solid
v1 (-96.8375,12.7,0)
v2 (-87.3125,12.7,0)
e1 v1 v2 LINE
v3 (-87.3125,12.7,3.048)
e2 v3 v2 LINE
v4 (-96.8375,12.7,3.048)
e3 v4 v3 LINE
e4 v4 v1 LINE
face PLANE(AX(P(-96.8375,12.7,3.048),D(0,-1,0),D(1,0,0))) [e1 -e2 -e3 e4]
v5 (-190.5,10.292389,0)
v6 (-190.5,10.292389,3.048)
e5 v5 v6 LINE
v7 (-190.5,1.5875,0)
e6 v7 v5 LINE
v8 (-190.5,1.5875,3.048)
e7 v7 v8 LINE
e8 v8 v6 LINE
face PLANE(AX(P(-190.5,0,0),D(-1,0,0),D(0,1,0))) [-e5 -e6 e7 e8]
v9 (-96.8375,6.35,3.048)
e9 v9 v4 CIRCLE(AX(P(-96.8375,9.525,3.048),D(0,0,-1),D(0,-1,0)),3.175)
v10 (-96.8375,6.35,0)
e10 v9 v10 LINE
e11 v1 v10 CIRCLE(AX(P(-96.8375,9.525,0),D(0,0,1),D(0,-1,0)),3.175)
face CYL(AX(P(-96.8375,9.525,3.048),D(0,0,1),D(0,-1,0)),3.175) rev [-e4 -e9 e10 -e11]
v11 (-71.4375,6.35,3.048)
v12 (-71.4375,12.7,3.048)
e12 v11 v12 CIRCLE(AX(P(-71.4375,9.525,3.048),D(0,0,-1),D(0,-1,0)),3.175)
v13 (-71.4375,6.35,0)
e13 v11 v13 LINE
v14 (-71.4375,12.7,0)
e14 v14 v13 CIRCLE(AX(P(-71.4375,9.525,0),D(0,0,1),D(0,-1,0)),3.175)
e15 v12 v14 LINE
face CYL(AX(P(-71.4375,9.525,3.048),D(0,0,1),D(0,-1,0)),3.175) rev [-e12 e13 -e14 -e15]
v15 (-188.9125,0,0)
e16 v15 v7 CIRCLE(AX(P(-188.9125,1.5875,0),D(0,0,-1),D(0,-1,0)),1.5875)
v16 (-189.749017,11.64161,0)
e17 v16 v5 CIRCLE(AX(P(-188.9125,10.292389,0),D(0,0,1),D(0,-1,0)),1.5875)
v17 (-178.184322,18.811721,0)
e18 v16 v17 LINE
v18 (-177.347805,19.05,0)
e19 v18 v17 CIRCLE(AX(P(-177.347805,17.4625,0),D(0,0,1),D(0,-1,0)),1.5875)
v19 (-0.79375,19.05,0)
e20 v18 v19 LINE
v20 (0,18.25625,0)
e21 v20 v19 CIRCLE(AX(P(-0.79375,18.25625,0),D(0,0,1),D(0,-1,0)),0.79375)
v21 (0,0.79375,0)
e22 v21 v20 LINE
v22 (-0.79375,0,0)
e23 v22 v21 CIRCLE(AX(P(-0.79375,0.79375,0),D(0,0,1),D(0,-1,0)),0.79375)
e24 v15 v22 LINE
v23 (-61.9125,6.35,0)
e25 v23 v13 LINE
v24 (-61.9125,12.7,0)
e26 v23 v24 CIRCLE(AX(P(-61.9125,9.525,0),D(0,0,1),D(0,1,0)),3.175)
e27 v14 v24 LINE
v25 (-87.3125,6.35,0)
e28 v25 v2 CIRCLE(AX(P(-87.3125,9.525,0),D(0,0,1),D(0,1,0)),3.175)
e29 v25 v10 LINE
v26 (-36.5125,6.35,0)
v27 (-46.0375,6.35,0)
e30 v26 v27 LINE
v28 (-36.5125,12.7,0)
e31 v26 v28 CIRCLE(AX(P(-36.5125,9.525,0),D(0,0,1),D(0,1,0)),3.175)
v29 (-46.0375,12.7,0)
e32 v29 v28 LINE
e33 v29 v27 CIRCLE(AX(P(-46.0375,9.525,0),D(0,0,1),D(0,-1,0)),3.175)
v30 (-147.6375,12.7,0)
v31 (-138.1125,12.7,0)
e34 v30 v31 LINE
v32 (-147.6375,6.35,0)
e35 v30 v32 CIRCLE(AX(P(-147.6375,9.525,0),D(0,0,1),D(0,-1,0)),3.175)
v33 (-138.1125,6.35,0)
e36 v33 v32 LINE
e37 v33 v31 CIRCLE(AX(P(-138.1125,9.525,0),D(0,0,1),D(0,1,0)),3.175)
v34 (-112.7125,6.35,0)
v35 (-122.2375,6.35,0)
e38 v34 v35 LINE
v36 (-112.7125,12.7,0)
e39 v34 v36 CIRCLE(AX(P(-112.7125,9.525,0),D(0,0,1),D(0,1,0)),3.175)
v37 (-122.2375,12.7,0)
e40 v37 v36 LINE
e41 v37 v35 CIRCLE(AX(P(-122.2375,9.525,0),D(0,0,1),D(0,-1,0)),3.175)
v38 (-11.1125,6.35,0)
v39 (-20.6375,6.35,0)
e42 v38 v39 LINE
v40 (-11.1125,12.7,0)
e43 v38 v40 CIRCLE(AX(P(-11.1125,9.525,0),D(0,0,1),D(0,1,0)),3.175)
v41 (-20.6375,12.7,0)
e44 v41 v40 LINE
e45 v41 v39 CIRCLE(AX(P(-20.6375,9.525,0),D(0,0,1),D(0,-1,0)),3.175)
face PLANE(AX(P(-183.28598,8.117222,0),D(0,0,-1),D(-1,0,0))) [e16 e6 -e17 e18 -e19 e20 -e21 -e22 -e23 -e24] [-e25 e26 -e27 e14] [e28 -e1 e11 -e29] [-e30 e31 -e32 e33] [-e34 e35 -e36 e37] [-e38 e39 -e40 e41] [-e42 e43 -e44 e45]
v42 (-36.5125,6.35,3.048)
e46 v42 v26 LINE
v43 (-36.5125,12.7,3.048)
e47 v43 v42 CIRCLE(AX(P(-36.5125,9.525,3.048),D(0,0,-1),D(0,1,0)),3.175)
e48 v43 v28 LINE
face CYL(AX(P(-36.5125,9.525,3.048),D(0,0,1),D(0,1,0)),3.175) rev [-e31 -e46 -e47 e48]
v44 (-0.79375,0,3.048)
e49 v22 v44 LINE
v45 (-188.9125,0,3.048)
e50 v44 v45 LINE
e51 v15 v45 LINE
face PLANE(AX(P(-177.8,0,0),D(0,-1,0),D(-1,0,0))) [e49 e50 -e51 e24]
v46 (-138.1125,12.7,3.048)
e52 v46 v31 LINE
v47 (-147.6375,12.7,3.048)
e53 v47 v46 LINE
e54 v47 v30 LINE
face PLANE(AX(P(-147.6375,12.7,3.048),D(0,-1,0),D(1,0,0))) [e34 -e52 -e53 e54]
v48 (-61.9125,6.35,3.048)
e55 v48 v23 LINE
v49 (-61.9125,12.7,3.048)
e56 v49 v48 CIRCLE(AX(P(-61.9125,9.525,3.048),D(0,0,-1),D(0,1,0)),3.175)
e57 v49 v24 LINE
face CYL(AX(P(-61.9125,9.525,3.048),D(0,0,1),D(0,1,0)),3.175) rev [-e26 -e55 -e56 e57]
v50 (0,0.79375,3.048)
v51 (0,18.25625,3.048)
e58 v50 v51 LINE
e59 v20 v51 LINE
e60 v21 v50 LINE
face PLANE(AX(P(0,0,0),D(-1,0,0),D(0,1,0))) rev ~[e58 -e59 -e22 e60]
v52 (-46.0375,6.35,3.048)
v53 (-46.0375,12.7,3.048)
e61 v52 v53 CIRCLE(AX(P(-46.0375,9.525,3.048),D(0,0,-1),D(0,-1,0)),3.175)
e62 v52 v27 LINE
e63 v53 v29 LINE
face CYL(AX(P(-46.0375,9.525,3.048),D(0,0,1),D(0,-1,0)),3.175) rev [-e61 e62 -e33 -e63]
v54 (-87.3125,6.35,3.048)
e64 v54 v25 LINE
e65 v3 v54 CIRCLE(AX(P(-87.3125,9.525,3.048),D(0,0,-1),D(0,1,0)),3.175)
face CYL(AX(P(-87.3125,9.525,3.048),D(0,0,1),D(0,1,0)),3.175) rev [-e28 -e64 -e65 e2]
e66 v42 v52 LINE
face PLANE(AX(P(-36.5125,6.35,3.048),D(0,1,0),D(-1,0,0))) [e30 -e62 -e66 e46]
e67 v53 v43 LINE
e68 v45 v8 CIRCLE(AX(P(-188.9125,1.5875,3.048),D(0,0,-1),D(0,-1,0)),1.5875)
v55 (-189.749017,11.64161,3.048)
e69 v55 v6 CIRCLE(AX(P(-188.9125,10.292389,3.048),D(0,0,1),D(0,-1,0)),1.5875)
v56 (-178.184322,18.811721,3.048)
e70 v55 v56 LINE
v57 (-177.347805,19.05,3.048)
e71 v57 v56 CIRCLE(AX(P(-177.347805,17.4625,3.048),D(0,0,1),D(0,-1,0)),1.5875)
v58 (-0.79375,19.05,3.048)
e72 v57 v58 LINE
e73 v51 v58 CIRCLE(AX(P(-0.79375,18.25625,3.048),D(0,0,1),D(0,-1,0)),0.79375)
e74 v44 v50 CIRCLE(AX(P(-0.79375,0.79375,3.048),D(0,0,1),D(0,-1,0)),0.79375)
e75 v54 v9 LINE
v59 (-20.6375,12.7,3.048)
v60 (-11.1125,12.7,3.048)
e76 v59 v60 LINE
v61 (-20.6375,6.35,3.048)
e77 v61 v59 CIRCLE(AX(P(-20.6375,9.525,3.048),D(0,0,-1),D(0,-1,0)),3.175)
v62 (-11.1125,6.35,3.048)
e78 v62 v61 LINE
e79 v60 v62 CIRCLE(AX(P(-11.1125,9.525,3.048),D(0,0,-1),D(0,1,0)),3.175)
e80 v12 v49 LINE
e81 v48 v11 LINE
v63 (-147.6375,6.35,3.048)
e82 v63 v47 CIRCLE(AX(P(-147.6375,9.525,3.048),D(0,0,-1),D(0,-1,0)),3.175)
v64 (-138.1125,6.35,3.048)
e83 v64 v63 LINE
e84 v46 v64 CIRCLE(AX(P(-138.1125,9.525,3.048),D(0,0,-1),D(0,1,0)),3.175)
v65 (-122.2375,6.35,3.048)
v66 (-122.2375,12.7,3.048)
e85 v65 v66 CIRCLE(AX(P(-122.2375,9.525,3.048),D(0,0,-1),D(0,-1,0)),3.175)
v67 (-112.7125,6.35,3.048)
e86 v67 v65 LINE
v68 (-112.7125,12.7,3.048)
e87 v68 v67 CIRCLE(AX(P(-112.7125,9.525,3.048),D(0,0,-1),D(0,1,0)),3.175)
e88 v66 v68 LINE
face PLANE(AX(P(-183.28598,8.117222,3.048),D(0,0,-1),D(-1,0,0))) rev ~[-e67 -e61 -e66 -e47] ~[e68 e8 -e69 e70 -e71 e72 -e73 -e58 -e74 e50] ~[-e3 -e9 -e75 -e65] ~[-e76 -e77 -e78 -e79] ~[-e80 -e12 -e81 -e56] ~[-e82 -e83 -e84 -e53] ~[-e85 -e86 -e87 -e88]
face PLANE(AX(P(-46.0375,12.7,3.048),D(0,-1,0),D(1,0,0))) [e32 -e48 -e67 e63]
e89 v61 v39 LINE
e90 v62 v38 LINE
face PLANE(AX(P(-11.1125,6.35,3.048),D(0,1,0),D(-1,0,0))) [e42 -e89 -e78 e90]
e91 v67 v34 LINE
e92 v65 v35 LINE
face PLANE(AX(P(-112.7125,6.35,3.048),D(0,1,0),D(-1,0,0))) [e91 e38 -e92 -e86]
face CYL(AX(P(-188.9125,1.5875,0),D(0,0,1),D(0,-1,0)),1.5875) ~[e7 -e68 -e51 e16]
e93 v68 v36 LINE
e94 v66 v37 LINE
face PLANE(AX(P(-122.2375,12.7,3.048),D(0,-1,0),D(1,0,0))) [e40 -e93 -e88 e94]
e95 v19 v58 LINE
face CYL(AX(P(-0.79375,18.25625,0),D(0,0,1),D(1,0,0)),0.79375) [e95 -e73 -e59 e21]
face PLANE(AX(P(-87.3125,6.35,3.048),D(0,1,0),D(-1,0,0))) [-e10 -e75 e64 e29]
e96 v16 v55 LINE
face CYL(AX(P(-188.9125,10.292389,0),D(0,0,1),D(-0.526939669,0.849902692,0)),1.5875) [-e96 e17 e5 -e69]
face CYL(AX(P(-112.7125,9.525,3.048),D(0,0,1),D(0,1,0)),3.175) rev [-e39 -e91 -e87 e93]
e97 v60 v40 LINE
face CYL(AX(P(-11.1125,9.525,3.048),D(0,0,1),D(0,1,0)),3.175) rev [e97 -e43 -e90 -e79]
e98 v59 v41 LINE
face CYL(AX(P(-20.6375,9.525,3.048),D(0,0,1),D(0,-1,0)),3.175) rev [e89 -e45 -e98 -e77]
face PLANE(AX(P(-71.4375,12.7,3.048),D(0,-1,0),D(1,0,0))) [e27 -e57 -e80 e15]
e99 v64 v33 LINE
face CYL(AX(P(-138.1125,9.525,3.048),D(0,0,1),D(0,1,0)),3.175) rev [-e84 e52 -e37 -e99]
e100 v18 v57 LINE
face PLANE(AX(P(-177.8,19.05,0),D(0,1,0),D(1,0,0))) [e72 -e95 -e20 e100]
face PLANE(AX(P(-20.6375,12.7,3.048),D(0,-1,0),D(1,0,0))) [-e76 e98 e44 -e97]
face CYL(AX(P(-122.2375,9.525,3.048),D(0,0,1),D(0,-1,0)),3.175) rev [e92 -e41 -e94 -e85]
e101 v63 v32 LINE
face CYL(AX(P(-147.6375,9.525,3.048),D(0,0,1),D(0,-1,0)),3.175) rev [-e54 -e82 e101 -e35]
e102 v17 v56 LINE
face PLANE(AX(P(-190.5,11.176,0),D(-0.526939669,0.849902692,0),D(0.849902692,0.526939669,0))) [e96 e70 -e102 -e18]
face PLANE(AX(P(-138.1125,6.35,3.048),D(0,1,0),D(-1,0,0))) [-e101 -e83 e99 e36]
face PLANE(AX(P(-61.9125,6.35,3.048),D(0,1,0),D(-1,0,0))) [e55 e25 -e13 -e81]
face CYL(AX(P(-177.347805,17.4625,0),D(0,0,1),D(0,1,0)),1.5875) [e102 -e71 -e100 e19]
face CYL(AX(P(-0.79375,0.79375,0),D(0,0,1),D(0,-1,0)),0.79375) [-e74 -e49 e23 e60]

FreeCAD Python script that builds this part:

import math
import FreeCAD as App
import Part
import Sketcher
from FreeCAD import Vector
Q = App.Units.Quantity


def edges_at(feature, points):
    """Names of the edges that pass closest to the given points."""
    edges = feature.Shape.Edges
    near = lambda p: min(range(len(edges)), key=lambda i: edges[i].distToShape(Part.Vertex(*p))[0])
    return sorted({f"Edge{near(p) + 1}" for p in points})


def add_polygon(sketch, points):
    """Adds a closed chain of lines whose ends are joined by coincident constraints."""
    first, n = sketch.GeometryCount, len(points)
    for a, b in zip(points, points[1:] + points[:1]):
        sketch.addGeometry(Part.LineSegment(App.Vector(*a, 0), App.Vector(*b, 0)), False)
    for i in range(n):
        sketch.addConstraint(Sketcher.Constraint("Coincident", first + i, 2, first + (i + 1) % n, 1))

doc = App.newDocument("Part")
params = doc.addObject("Spreadsheet::Sheet", "Params")
for row, (alias, value) in enumerate([
    ("sketch1_width", "7 in"),
    ("sketch1_height", "0.75 in"),
    ("pad1_length", "0.12 in"),
    ("sketch2_radius", "0.125 in"),
    ("sketch2_width", "0.375 in"),
    ("sketch3_width", "0.5 in"),
    ("sketch3_height", "0.44 in"),
    ("sketch3_height2", "0.75 in"),
    ("pad2_length", "0.12 in"),
    ("fillet_radius", "0.0625 in"),
    ("fillet2_radius", "0.03125 in"),
], start=1):
    params.set(f"A{row}", alias)
    params.set(f"B{row}", "=" + value)
    params.setAlias(f"B{row}", alias)

body = doc.addObject("PartDesign::Body", "Body")

sketch1 = doc.addObject("Sketcher::SketchObject", "Sketch")
body.addObject(sketch1)
sketch1.AttachmentSupport = (doc.XY_Plane, [""])
sketch1.MapMode = "FlatFace"
add_polygon(sketch1, [(-177.8, 19.05), (-177.8, 0), (0, 0), (0, 19.05)])
sketch1.addConstraint(Sketcher.Constraint("Vertical", 0))
sketch1.addConstraint(Sketcher.Constraint("Horizontal", 1))
sketch1.addConstraint(Sketcher.Constraint("Vertical", 2))
sketch1.addConstraint(Sketcher.Constraint("Horizontal", 3))
sketch1.addConstraint(Sketcher.Constraint("Coincident", 1, 2, -1, 1))
sketch1.addConstraint(Sketcher.Constraint("DistanceX", 1, 1, 1, 2, Q("7 in")))
sketch1.addConstraint(Sketcher.Constraint("DistanceY", 0, 2, 0, 1, Q("0.75 in")))
sketch1.setExpression("Constraints[9]", "Params.sketch1_width")
sketch1.setExpression("Constraints[10]", "Params.sketch1_height")
pad1 = doc.addObject("PartDesign::Pad", "Pad")
body.addObject(pad1)
pad1.Profile = sketch1
pad1.setExpression("Length", "Params.pad1_length")

sketch2 = doc.addObject("Sketcher::SketchObject", "Sketch001")
body.addObject(sketch2)
sketch2.AttachmentSupport = (doc.XY_Plane, [""])
sketch2.MapMode = "FlatFace"
sketch2.AttachmentOffset = App.Placement(Vector(0, 0, 0.12 * 25.4), App.Rotation())
sketch2.addGeometry(Part.LineSegment(Vector(-20.6375, 6.35, 0), Vector(-11.1125, 6.35, 0)), False)
sketch2.addGeometry(Part.ArcOfCircle(Part.Circle(Vector(-11.1125, 9.525, 0), Vector(0, 0, 1), 3.175), math.radians(-90), math.radians(90)), False)
sketch2.addGeometry(Part.LineSegment(Vector(-11.1125, 12.7, 0), Vector(-20.6375, 12.7, 0)), False)
sketch2.addGeometry(Part.ArcOfCircle(Part.Circle(Vector(-20.6375, 9.525, 0), Vector(0, 0, 1), 3.175), math.radians(90), math.radians(270)), False)
sketch2.addGeometry(Part.LineSegment(Vector(-46.0375, 6.35, 0), Vector(-36.5125, 6.35, 0)), False)
sketch2.addGeometry(Part.ArcOfCircle(Part.Circle(Vector(-36.5125, 9.525, 0), Vector(0, 0, 1), 3.175), math.radians(-90), math.radians(90)), False)
sketch2.addGeometry(Part.LineSegment(Vector(-36.5125, 12.7, 0), Vector(-46.0375, 12.7, 0)), False)
sketch2.addGeometry(Part.ArcOfCircle(Part.Circle(Vector(-46.0375, 9.525, 0), Vector(0, 0, 1), 3.175), math.radians(90), math.radians(270)), False)
sketch2.addGeometry(Part.LineSegment(Vector(-71.4375, 6.35, 0), Vector(-61.9125, 6.35, 0)), False)
sketch2.addGeometry(Part.ArcOfCircle(Part.Circle(Vector(-61.9125, 9.525, 0), Vector(0, 0, 1), 3.175), math.radians(-90), math.radians(90)), False)
sketch2.addGeometry(Part.LineSegment(Vector(-61.9125, 12.7, 0), Vector(-71.4375, 12.7, 0)), False)
sketch2.addGeometry(Part.ArcOfCircle(Part.Circle(Vector(-71.4375, 9.525, 0), Vector(0, 0, 1), 3.175), math.radians(90), math.radians(270)), False)
sketch2.addGeometry(Part.LineSegment(Vector(-96.8375, 6.35, 0), Vector(-87.3125, 6.35, 0)), False)
sketch2.addGeometry(Part.ArcOfCircle(Part.Circle(Vector(-87.3125, 9.525, 0), Vector(0, 0, 1), 3.175), math.radians(-90), math.radians(90)), False)
sketch2.addGeometry(Part.LineSegment(Vector(-87.3125, 12.7, 0), Vector(-96.8375, 12.7, 0)), False)
sketch2.addGeometry(Part.ArcOfCircle(Part.Circle(Vector(-96.8375, 9.525, 0), Vector(0, 0, 1), 3.175), math.radians(90), math.radians(270)), False)
sketch2.addGeometry(Part.LineSegment(Vector(-122.2375, 6.35, 0), Vector(-112.7125, 6.35, 0)), False)
sketch2.addGeometry(Part.ArcOfCircle(Part.Circle(Vector(-112.7125, 9.525, 0), Vector(0, 0, 1), 3.175), math.radians(-90), math.radians(90)), False)
sketch2.addGeometry(Part.LineSegment(Vector(-112.7125, 12.7, 0), Vector(-122.2375, 12.7, 0)), False)
sketch2.addGeometry(Part.ArcOfCircle(Part.Circle(Vector(-122.2375, 9.525, 0), Vector(0, 0, 1), 3.175), math.radians(90), math.radians(270)), False)
sketch2.addGeometry(Part.LineSegment(Vector(-147.6375, 6.35, 0), Vector(-138.1125, 6.35, 0)), False)
sketch2.addGeometry(Part.ArcOfCircle(Part.Circle(Vector(-138.1125, 9.525, 0), Vector(0, 0, 1), 3.175), math.radians(-90), math.radians(90)), False)
sketch2.addGeometry(Part.LineSegment(Vector(-138.1125, 12.7, 0), Vector(-147.6375, 12.7, 0)), False)
sketch2.addGeometry(Part.ArcOfCircle(Part.Circle(Vector(-147.6375, 9.525, 0), Vector(0, 0, 1), 3.175), math.radians(90), math.radians(270)), False)
sketch2.addConstraint(Sketcher.Constraint("Tangent", 0, 2, 1, 1))
sketch2.addConstraint(Sketcher.Constraint("Tangent", 1, 2, 2, 1))
sketch2.addConstraint(Sketcher.Constraint("Tangent", 2, 2, 3, 1))
sketch2.addConstraint(Sketcher.Constraint("Tangent", 3, 2, 0, 1))
sketch2.addConstraint(Sketcher.Constraint("Tangent", 4, 2, 5, 1))
sketch2.addConstraint(Sketcher.Constraint("Tangent", 5, 2, 6, 1))
sketch2.addConstraint(Sketcher.Constraint("Tangent", 6, 2, 7, 1))
sketch2.addConstraint(Sketcher.Constraint("Tangent", 7, 2, 4, 1))
sketch2.addConstraint(Sketcher.Constraint("Tangent", 8, 2, 9, 1))
sketch2.addConstraint(Sketcher.Constraint("Tangent", 9, 2, 10, 1))
sketch2.addConstraint(Sketcher.Constraint("Tangent", 10, 2, 11, 1))
sketch2.addConstraint(Sketcher.Constraint("Tangent", 11, 2, 8, 1))
sketch2.addConstraint(Sketcher.Constraint("Tangent", 12, 2, 13, 1))
sketch2.addConstraint(Sketcher.Constraint("Tangent", 13, 2, 14, 1))
sketch2.addConstraint(Sketcher.Constraint("Tangent", 14, 2, 15, 1))
sketch2.addConstraint(Sketcher.Constraint("Tangent", 15, 2, 12, 1))
sketch2.addConstraint(Sketcher.Constraint("Tangent", 16, 2, 17, 1))
sketch2.addConstraint(Sketcher.Constraint("Tangent", 17, 2, 18, 1))
sketch2.addConstraint(Sketcher.Constraint("Tangent", 18, 2, 19, 1))
sketch2.addConstraint(Sketcher.Constraint("Tangent", 19, 2, 16, 1))
sketch2.addConstraint(Sketcher.Constraint("Tangent", 20, 2, 21, 1))
sketch2.addConstraint(Sketcher.Constraint("Tangent", 21, 2, 22, 1))
sketch2.addConstraint(Sketcher.Constraint("Tangent", 22, 2, 23, 1))
sketch2.addConstraint(Sketcher.Constraint("Tangent", 23, 2, 20, 1))
sketch2.addConstraint(Sketcher.Constraint("Horizontal", 0))
sketch2.addConstraint(Sketcher.Constraint("Horizontal", 2))
sketch2.addConstraint(Sketcher.Constraint("Horizontal", 4))
sketch2.addConstraint(Sketcher.Constraint("Horizontal", 6))
sketch2.addConstraint(Sketcher.Constraint("Horizontal", 8))
sketch2.addConstraint(Sketcher.Constraint("Horizontal", 10))
sketch2.addConstraint(Sketcher.Constraint("Horizontal", 12))
sketch2.addConstraint(Sketcher.Constraint("Horizontal", 14))
sketch2.addConstraint(Sketcher.Constraint("Horizontal", 16))
sketch2.addConstraint(Sketcher.Constraint("Horizontal", 18))
sketch2.addConstraint(Sketcher.Constraint("Horizontal", 20))
sketch2.addConstraint(Sketcher.Constraint("Horizontal", 22))
sketch2.addConstraint(Sketcher.Constraint("Equal", 3, 5))
sketch2.addConstraint(Sketcher.Constraint("Equal", 7, 9))
sketch2.addConstraint(Sketcher.Constraint("Equal", 11, 13))
sketch2.addConstraint(Sketcher.Constraint("Equal", 15, 17))
sketch2.addConstraint(Sketcher.Constraint("Equal", 19, 21))
sketch2.addConstraint(Sketcher.Constraint("Horizontal", 3, 3, 5, 3))
sketch2.addConstraint(Sketcher.Constraint("Horizontal", 7, 3, 9, 3))
sketch2.addConstraint(Sketcher.Constraint("Horizontal", 11, 3, 13, 3))
sketch2.addConstraint(Sketcher.Constraint("Horizontal", 15, 3, 17, 3))
sketch2.addConstraint(Sketcher.Constraint("Horizontal", 19, 3, 21, 3))
sketch2.addConstraint(Sketcher.Constraint("Equal", 2, 4))
sketch2.addConstraint(Sketcher.Constraint("Equal", 6, 8))
sketch2.addConstraint(Sketcher.Constraint("Equal", 10, 12))
sketch2.addConstraint(Sketcher.Constraint("Equal", 14, 16))
sketch2.addConstraint(Sketcher.Constraint("Equal", 18, 20))
sketch2.addConstraint(Sketcher.Constraint("Radius", 1, Q("0.125 in")))
sketch2.addConstraint(Sketcher.Constraint("DistanceX", 5, 3, 1, 3, Q("1 in")))
sketch2.addConstraint(Sketcher.Constraint("DistanceX", 9, 3, 5, 3, Q("1 in")))
sketch2.addConstraint(Sketcher.Constraint("DistanceX", 13, 3, 9, 3, Q("1 in")))
sketch2.addConstraint(Sketcher.Constraint("DistanceX", 17, 3, 13, 3, Q("1 in")))
sketch2.addConstraint(Sketcher.Constraint("DistanceX", 21, 3, 17, 3, Q("1 in")))
sketch2.addConstraint(Sketcher.Constraint("DistanceY", -1, 1, 1, 2, Q("0.5 in")))
sketch2.addConstraint(Sketcher.Constraint("DistanceX", 0, 1, 0, 2, Q("0.375 in")))
sketch2.addConstraint(Sketcher.Constraint("DistanceX", 1, 3, -1, 1, Q("0.4375 in")))
sketch2.setExpression("Constraints[51]", "Params.sketch2_radius")
sketch2.setExpression("Constraints[58]", "Params.sketch2_width")
pocket1 = doc.addObject("PartDesign::Pocket", "Pocket")
body.addObject(pocket1)
pocket1.Profile = sketch2
pocket1.Type = "ThroughAll"

sketch3 = doc.addObject("Sketcher::SketchObject", "Sketch002")
body.addObject(sketch3)
sketch3.AttachmentSupport = (doc.XY_Plane, [""])
sketch3.MapMode = "FlatFace"
add_polygon(sketch3, [(-177.8, 0), (-190.5, 0), (-190.5, 11.176), (-177.8, 19.05)])
sketch3.addConstraint(Sketcher.Constraint("Horizontal", 0))
sketch3.addConstraint(Sketcher.Constraint("Vertical", 1))
sketch3.addConstraint(Sketcher.Constraint("Vertical", 3))
sketch3.addConstraint(Sketcher.Constraint("PointOnObject", 0, 2, -1))
sketch3.addConstraint(Sketcher.Constraint("DistanceX", 0, 2, 0, 1, Q("0.5 in")))
sketch3.addConstraint(Sketcher.Constraint("DistanceX", 2, 2, -1, 1, Q("7 in")))
sketch3.addConstraint(Sketcher.Constraint("DistanceY", 1, 1, 1, 2, Q("0.44 in")))
sketch3.addConstraint(Sketcher.Constraint("DistanceY", 3, 2, 3, 1, Q("0.75 in")))
sketch3.setExpression("Constraints[8]", "Params.sketch3_width")
sketch3.setExpression("Constraints[10]", "Params.sketch3_height")
sketch3.setExpression("Constraints[11]", "Params.sketch3_height2")
pad2 = doc.addObject("PartDesign::Pad", "Pad001")
body.addObject(pad2)
pad2.Profile = sketch3
pad2.setExpression("Length", "Params.pad2_length")
doc.recompute()

fillet = doc.addObject("PartDesign::Fillet", "Fillet")
body.addObject(fillet)
fillet.Base = (pad2, edges_at(pad2, [(-190.5, 0, 1.524), (-190.5, 11.176, 1.524), (-177.8, 19.05, 1.524)]))
fillet.setExpression("Radius", "Params.fillet_radius")
doc.recompute()

fillet2 = doc.addObject("PartDesign::Fillet", "Fillet001")
body.addObject(fillet2)
fillet2.Base = (fillet, edges_at(fillet, [(0, 0, 1.524), (0, 19.05, 1.524)]))
fillet2.setExpression("Radius", "Params.fillet2_radius")

doc.recompute()
